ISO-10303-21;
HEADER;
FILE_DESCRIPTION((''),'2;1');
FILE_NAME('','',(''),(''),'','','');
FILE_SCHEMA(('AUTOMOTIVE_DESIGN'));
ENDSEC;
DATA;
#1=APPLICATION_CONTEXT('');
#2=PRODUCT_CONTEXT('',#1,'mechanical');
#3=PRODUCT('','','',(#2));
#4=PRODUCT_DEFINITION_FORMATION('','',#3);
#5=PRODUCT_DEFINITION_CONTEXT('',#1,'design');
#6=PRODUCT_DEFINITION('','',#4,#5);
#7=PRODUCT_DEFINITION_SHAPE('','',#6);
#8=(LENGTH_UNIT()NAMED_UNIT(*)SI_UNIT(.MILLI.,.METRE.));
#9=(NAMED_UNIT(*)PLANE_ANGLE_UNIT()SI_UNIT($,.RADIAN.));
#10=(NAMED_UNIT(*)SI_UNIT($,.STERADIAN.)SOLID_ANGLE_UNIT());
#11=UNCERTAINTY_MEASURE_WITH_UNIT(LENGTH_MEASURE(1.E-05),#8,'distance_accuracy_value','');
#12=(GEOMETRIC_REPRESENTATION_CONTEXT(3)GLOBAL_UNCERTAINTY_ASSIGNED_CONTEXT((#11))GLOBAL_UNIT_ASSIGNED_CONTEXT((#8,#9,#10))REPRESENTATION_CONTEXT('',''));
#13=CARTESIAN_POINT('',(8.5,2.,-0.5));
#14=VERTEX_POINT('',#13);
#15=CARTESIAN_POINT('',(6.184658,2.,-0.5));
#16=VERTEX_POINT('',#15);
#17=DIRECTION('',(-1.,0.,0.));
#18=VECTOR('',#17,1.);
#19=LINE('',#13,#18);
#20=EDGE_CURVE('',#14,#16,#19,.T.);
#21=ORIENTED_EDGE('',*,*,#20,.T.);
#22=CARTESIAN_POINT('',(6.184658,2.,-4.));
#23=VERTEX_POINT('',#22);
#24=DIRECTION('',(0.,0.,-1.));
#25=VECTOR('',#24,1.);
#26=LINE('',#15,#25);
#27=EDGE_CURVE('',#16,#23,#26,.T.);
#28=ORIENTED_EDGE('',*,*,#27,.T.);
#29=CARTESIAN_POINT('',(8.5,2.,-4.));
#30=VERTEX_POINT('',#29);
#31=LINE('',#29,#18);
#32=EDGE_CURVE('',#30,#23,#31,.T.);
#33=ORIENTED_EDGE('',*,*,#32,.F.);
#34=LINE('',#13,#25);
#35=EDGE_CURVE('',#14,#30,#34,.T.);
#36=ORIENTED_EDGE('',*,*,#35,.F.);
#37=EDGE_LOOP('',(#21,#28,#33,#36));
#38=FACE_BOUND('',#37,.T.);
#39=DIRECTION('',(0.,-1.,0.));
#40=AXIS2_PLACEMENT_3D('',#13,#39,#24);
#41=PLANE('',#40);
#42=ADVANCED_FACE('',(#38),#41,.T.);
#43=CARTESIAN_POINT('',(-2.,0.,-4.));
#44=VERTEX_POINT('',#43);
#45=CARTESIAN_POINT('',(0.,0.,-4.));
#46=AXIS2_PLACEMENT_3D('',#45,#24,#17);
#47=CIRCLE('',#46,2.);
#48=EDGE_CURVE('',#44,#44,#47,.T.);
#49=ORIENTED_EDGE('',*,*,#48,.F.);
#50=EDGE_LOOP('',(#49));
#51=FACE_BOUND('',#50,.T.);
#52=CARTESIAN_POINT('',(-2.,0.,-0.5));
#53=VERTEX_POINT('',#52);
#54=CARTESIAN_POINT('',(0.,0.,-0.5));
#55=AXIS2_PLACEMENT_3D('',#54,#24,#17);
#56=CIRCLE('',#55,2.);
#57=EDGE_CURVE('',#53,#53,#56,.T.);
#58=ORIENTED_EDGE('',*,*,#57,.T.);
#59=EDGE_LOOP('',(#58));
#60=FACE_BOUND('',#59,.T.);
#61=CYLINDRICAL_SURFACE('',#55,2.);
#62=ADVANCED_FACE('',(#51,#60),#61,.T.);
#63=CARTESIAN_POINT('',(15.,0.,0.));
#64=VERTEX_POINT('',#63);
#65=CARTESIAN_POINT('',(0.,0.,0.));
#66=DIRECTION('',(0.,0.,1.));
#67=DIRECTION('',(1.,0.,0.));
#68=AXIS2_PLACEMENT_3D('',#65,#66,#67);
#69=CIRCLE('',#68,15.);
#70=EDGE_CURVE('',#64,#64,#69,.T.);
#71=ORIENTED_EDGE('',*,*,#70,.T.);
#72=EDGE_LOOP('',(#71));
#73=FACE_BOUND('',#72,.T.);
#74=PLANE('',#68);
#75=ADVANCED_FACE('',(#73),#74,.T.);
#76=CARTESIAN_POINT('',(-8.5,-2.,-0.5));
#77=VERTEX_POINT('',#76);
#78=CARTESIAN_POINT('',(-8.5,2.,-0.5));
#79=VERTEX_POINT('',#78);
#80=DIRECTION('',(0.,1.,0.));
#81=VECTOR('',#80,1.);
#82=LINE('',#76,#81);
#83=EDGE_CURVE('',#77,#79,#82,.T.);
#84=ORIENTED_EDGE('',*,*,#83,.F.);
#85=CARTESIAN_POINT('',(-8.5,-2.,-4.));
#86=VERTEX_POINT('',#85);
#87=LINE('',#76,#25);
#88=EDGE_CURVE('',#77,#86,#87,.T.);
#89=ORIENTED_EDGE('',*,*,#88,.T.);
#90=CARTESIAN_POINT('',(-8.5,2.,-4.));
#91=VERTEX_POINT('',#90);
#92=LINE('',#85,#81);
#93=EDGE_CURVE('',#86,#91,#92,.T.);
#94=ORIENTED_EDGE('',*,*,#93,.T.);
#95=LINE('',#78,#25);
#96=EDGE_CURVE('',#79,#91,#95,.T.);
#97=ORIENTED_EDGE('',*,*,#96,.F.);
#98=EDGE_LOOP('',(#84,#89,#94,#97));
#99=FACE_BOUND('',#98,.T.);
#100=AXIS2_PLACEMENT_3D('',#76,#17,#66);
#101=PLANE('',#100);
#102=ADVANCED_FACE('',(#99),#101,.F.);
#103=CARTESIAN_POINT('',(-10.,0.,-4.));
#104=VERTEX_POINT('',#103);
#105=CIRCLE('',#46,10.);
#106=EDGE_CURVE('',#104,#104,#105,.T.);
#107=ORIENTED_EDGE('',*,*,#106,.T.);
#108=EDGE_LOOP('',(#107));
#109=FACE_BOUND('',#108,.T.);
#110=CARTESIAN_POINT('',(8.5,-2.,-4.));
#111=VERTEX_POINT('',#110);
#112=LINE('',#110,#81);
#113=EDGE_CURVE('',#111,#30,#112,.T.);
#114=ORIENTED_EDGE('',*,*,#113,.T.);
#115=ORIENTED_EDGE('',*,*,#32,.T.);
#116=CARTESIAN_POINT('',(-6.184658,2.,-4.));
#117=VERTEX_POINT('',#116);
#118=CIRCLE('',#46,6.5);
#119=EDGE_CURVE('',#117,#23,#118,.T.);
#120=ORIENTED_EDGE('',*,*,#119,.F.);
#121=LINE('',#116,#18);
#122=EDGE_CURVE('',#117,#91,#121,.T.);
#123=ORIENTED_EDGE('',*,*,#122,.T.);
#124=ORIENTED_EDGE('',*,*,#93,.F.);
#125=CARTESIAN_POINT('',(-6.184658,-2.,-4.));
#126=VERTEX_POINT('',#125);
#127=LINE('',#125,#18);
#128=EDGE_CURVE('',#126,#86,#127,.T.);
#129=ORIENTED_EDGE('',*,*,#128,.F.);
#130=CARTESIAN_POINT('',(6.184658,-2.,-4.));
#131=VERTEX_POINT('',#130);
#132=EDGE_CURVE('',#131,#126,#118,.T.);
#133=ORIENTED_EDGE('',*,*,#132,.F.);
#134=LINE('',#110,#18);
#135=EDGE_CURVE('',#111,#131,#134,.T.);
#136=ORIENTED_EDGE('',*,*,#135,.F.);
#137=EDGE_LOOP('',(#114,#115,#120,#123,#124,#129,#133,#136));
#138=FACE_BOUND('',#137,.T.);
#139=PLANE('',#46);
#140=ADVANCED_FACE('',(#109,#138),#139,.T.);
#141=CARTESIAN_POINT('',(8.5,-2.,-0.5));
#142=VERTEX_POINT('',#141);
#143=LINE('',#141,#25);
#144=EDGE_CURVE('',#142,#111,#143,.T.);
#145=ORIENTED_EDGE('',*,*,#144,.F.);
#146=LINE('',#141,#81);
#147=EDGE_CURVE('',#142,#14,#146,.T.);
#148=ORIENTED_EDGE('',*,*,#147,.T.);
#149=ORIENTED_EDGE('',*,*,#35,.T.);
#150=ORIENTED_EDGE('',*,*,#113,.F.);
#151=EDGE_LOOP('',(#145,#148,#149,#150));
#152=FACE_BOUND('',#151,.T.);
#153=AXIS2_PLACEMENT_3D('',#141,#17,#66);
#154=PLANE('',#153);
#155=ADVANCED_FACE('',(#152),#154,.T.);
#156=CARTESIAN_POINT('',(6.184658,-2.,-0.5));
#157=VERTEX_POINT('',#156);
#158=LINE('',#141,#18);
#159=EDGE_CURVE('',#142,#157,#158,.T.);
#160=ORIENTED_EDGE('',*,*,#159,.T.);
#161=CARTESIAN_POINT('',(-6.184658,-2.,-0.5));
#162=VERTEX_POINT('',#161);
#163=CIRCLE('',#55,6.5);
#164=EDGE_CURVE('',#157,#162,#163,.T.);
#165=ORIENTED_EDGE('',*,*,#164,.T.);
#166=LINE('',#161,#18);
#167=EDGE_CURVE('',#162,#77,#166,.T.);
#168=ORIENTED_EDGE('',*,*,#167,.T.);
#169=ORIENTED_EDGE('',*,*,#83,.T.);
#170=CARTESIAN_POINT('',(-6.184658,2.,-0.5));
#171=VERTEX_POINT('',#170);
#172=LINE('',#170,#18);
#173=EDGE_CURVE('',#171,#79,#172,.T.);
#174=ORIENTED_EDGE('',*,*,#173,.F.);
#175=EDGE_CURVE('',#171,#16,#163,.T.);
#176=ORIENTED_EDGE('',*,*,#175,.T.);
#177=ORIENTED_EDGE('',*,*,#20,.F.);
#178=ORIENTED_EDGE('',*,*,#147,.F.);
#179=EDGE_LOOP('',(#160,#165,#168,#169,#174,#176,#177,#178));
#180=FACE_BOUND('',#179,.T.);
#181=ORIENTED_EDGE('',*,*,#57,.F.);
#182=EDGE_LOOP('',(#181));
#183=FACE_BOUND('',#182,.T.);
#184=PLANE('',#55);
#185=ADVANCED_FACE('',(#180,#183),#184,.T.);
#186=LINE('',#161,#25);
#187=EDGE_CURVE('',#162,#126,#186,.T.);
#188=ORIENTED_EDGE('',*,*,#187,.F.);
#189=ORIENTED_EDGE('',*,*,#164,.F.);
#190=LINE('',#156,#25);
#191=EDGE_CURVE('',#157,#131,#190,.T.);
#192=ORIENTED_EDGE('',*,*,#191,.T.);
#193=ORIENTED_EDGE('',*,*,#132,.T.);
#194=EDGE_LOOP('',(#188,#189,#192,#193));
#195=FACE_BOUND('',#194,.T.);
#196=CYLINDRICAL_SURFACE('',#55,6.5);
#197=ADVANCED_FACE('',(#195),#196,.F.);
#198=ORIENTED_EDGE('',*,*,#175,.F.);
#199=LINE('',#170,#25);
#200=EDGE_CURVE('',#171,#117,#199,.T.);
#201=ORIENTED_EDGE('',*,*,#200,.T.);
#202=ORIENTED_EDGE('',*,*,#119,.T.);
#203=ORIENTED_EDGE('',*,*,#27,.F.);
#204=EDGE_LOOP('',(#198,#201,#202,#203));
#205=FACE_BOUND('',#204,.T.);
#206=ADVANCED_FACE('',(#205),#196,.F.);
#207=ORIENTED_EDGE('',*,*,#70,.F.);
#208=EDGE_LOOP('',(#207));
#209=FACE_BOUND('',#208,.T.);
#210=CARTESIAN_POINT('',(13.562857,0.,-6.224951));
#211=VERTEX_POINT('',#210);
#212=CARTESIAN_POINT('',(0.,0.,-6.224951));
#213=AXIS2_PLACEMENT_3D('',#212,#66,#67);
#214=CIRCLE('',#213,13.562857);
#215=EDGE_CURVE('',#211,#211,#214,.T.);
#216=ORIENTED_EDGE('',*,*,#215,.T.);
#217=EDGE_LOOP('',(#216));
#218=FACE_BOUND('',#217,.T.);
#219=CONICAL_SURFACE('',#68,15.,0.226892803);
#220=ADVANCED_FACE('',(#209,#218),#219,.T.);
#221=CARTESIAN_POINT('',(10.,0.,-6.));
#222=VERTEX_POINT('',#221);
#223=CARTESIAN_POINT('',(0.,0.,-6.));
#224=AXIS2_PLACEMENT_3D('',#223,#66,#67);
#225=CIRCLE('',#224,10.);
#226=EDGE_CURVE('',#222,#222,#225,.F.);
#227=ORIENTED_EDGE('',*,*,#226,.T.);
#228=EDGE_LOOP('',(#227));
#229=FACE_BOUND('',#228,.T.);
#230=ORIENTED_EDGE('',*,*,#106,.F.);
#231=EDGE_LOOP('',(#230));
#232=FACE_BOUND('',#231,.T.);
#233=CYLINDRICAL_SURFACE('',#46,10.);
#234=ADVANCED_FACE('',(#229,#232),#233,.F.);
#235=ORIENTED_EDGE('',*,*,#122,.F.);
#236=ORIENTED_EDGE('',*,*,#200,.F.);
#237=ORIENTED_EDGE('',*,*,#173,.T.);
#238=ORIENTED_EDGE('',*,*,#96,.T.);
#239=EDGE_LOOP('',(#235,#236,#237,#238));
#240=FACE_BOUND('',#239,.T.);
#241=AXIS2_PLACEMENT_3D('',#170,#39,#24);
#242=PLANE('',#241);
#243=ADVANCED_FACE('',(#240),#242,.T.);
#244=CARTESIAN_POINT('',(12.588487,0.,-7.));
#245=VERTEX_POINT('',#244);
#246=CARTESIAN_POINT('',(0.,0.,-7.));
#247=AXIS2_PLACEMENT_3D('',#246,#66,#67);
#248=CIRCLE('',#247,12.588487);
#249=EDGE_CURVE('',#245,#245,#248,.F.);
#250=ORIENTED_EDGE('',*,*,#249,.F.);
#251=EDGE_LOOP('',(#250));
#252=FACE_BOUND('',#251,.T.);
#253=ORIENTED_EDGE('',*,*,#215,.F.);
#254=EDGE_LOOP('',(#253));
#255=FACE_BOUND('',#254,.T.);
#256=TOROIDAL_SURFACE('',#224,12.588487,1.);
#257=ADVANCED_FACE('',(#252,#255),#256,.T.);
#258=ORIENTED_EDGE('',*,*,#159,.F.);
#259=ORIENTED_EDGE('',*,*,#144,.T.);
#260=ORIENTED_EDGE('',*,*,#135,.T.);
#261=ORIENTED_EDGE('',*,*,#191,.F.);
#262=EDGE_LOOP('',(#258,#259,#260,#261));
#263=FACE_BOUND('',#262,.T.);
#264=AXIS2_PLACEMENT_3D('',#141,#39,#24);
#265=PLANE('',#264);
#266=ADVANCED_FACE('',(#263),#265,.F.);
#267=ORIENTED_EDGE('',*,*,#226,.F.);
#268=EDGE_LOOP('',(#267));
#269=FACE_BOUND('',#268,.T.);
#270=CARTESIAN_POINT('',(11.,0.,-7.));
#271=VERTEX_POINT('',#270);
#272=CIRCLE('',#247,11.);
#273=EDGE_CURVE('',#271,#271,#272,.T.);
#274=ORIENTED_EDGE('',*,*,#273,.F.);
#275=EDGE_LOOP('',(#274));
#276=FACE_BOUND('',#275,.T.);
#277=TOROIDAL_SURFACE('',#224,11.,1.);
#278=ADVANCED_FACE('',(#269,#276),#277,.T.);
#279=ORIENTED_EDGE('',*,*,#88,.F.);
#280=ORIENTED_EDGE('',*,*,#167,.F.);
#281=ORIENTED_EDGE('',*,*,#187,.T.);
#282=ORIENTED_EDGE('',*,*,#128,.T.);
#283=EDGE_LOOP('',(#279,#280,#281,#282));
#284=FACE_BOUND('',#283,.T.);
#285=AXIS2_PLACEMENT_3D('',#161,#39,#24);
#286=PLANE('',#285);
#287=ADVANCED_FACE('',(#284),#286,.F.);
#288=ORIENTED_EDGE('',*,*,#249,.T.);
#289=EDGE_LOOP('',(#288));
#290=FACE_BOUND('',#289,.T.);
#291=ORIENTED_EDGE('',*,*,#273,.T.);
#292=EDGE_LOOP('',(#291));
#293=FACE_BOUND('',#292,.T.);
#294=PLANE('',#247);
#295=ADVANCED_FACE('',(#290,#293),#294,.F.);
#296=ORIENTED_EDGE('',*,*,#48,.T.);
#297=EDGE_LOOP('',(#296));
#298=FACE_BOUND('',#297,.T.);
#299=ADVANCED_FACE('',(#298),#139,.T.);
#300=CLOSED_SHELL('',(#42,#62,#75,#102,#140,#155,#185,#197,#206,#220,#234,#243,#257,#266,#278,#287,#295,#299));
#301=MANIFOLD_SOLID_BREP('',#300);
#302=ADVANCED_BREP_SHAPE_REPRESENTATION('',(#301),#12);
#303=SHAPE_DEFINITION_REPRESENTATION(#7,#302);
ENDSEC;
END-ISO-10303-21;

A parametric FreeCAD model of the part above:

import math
import FreeCAD as App
import Part
import Sketcher
from FreeCAD import Vector
Q = App.Units.Quantity


def edges_at(feature, points):
    """Names of the edges that pass closest to the given points."""
    edges = feature.Shape.Edges
    near = lambda p: min(range(len(edges)), key=lambda i: edges[i].distToShape(Part.Vertex(*p))[0])
    return sorted({f"Edge{near(p) + 1}" for p in points})


def faces_at(feature, points):
    """Names of the faces that lie closest to the given points."""
    faces = feature.Shape.Faces
    near = lambda p: min(range(len(faces)), key=lambda i: faces[i].distToShape(Part.Vertex(*p))[0])
    return sorted({f"Face{near(p) + 1}" for p in points})

doc = App.newDocument("Part")
body = doc.addObject("PartDesign::Body", "Body")

sketch1 = body.newObject("Sketcher::SketchObject", "Sketch")
sketch1.AttachmentSupport = (doc.getObject("XY_Plane"), [""])
sketch1.MapMode = "FlatFace"
sketch1.addGeometry(Part.Circle(Vector(0, 0, 0), Vector(0, 0, 1), 15), False)
sketch1.addConstraint(Sketcher.Constraint("Coincident", 0, 3, -1, 1))
sketch1.addConstraint(Sketcher.Constraint("Diameter", 0, Q("30 mm")))
pad1 = body.newObject("PartDesign::Pad", "Pad")
pad1.Profile = sketch1
pad1.Length = 7
pad1.Reversed = True
doc.recompute()

draft = body.newObject("PartDesign::Draft", "Draft")
draft.Base = (pad1, faces_at(pad1, [(-15, 0, -3.5)]))
draft.NeutralPlane = (doc.getObject("XY_Plane"), [""])
draft.Angle = 13
draft.Reversed = True

sketch2 = body.newObject("Sketcher::SketchObject", "Sketch001")
sketch2.AttachmentSupport = (doc.getObject("XY_Plane"), [""])
sketch2.MapMode = "FlatFace"
sketch2.AttachmentOffset = App.Placement(Vector(0, 0, -7), App.Rotation())
sketch2.addGeometry(Part.Circle(Vector(0, 0, 0), Vector(0, 0, 1), 10), False)
sketch2.addConstraint(Sketcher.Constraint("Coincident", 0, 3, -1, 1))
sketch2.addConstraint(Sketcher.Constraint("Diameter", 0, Q("20 mm")))
pocket1 = body.newObject("PartDesign::Pocket", "Pocket")
pocket1.Profile = sketch2
pocket1.Length = 3
pocket1.Reversed = True
doc.recompute()

fillet = body.newObject("PartDesign::Fillet", "Fillet")
fillet.Base = (pocket1, edges_at(pocket1, [(10, 0, -7)]))
fillet.Radius = 1
doc.recompute()

fillet2 = body.newObject("PartDesign::Fillet", "Fillet001")
fillet2.Base = (fillet, edges_at(fillet, [(-13.384, 0, -7)]))
fillet2.Radius = 1

sketch3 = body.newObject("Sketcher::SketchObject", "Sketch002")
sketch3.AttachmentSupport = (doc.getObject("XY_Plane"), [""])
sketch3.MapMode = "FlatFace"
sketch3.AttachmentOffset = App.Placement(Vector(0, 0, -4), App.Rotation())
sketch3.addGeometry(Part.LineSegment(Vector(-8.5, 2, 0), Vector(-6.2, 2, 0)), False)
sketch3.addGeometry(Part.ArcOfCircle(Part.Circle(Vector(0, 0, 0), Vector(0, 0, 1), 6.5), math.radians(18), math.radians(162)), False)
sketch3.addGeometry(Part.LineSegment(Vector(6.2, 2, 0), Vector(8.5, 2, 0)), False)
sketch3.addGeometry(Part.LineSegment(Vector(8.5, 2, 0), Vector(8.5, -2, 0)), False)
sketch3.addGeometry(Part.LineSegment(Vector(8.5, -2, 0), Vector(6.2, -2, 0)), False)
sketch3.addGeometry(Part.ArcOfCircle(Part.Circle(Vector(0, 0, 0), Vector(0, 0, 1), 6.5), math.radians(-162), math.radians(-18)), False)
sketch3.addGeometry(Part.LineSegment(Vector(-6.2, -2, 0), Vector(-8.5, -2, 0)), False)
sketch3.addGeometry(Part.LineSegment(Vector(-8.5, -2, 0), Vector(-8.5, 2, 0)), False)
sketch3.addGeometry(Part.Circle(Vector(0, 0, 0), Vector(0, 0, 1), 2), False)
sketch3.addConstraint(Sketcher.Constraint("Coincident", 0, 2, 1, 2))
sketch3.addConstraint(Sketcher.Constraint("Coincident", 1, 1, 2, 1))
sketch3.addConstraint(Sketcher.Constraint("Coincident", 2, 2, 3, 1))
sketch3.addConstraint(Sketcher.Constraint("Coincident", 3, 2, 4, 1))
sketch3.addConstraint(Sketcher.Constraint("Coincident", 4, 2, 5, 2))
sketch3.addConstraint(Sketcher.Constraint("Coincident", 5, 1, 6, 1))
sketch3.addConstraint(Sketcher.Constraint("Coincident", 6, 2, 7, 1))
sketch3.addConstraint(Sketcher.Constraint("Coincident", 7, 2, 0, 1))
sketch3.addConstraint(Sketcher.Constraint("Horizontal", 0))
sketch3.addConstraint(Sketcher.Constraint("Horizontal", 2))
sketch3.addConstraint(Sketcher.Constraint("Vertical", 3))
sketch3.addConstraint(Sketcher.Constraint("Horizontal", 4))
sketch3.addConstraint(Sketcher.Constraint("Horizontal", 6))
sketch3.addConstraint(Sketcher.Constraint("Vertical", 7))
sketch3.addConstraint(Sketcher.Constraint("Coincident", 1, 3, -1, 1))
sketch3.addConstraint(Sketcher.Constraint("Coincident", 5, 3, -1, 1))
sketch3.addConstraint(Sketcher.Constraint("Coincident", 8, 3, -1, 1))
sketch3.addConstraint(Sketcher.Constraint("Equal", 1, 5))
sketch3.addConstraint(Sketcher.Constraint("Symmetric", 2, 2, 6, 2, -1, 1))
sketch3.addConstraint(Sketcher.Constraint("Horizontal", 0, 2, 1, 1))
sketch3.addConstraint(Sketcher.Constraint("Horizontal", 4, 2, 5, 1))
sketch3.addConstraint(Sketcher.Constraint("Diameter", 8, Q("4 mm")))
sketch3.addConstraint(Sketcher.Constraint("Radius", 1, Q("6.5 mm")))
sketch3.addConstraint(Sketcher.Constraint("DistanceY", 3, 2, 3, 1, Q("4 mm")))
sketch3.addConstraint(Sketcher.Constraint("DistanceX", -1, 1, 2, 2, Q("8.5 mm")))
pocket2 = body.newObject("PartDesign::Pocket", "Pocket001")
pocket2.Profile = sketch3
pocket2.Length = 3.5
pocket2.Reversed = True

doc.recompute()
